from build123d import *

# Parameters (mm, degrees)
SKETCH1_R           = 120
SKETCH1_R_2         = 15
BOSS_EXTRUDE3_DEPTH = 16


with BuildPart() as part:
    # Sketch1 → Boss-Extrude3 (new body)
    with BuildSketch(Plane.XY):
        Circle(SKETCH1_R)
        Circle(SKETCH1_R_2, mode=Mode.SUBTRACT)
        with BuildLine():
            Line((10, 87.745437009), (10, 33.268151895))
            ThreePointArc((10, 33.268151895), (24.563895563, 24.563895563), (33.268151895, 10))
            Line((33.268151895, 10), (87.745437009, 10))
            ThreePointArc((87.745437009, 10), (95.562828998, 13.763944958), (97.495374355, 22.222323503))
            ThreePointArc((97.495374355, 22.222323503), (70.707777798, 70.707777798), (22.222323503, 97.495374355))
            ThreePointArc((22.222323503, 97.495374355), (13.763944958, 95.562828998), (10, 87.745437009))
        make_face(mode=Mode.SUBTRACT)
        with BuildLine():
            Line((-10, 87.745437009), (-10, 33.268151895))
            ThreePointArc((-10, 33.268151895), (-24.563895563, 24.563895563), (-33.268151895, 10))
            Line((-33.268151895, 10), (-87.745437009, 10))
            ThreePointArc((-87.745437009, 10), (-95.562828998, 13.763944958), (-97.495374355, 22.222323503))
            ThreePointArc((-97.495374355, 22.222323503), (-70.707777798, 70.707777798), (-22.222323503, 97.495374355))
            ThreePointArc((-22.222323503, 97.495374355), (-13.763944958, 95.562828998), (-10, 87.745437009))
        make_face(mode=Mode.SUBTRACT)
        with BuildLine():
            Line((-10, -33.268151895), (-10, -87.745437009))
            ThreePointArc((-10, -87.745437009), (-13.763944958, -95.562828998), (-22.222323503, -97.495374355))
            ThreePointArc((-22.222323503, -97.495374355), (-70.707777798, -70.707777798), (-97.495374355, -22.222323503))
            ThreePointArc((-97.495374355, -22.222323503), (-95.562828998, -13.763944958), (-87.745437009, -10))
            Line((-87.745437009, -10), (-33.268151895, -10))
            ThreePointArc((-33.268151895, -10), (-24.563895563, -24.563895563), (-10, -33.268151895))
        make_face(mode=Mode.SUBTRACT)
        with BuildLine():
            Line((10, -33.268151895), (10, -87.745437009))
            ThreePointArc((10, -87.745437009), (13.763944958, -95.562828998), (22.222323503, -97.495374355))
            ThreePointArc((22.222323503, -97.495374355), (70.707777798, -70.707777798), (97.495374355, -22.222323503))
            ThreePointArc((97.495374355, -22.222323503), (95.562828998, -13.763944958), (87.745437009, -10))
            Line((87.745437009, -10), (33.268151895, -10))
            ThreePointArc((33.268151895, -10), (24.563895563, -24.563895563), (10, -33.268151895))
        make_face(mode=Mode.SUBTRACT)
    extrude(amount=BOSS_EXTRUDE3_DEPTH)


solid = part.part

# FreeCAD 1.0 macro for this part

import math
import FreeCAD as App
import Part
import Sketcher
Q = App.Units.Quantity

doc = App.newDocument("Part")
body = doc.addObject("PartDesign::Body", "Body")

# Sketch on XY plane
sketch1 = doc.addObject("Sketcher::SketchObject", "Sketch")
body.addObject(sketch1)
sketch1.AttachmentSupport = (doc.XY_Plane, [""])
sketch1.MapMode = "FlatFace"
sketch1.addGeometry([
    Part.Circle(App.Vector(0, 0, 0), App.Vector(0, 0, 1), 120),  # 0
    Part.ArcOfCircle(Part.Circle(App.Vector(0, 0, 0), App.Vector(0, 0, 1), 35), math.radians(-163), math.radians(-107)),  # 1
    Part.LineSegment(App.Vector(-10, -33, 0), App.Vector(-10, -88, 0)),  # 2
    Part.ArcOfCircle(Part.Circle(App.Vector(-20, -88, 0), App.Vector(0, 0, 1), 10), math.radians(-103), math.radians(0)),  # 3
    Part.ArcOfCircle(Part.Circle(App.Vector(0, 0, 0), App.Vector(0, 0, 1), 100), math.radians(-167), math.radians(-103)),  # 4
    Part.ArcOfCircle(Part.Circle(App.Vector(-88, -20, 0), App.Vector(0, 0, 1), 10), math.radians(90), math.radians(193)),  # 5
    Part.LineSegment(App.Vector(-88, -10, 0), App.Vector(-33, -10, 0)),  # 6
    Part.Circle(App.Vector(0, 0, 0), App.Vector(0, 0, 1), 15),  # 7
    Part.LineSegment(App.Vector(10, -88, 0), App.Vector(10, -33, 0)),  # 8
    Part.ArcOfCircle(Part.Circle(App.Vector(0, 0, 0), App.Vector(0, 0, 1), 35), math.radians(-73), math.radians(-17)),  # 9
    Part.LineSegment(App.Vector(33, -10, 0), App.Vector(88, -10, 0)),  # 10
    Part.ArcOfCircle(Part.Circle(App.Vector(88, -20, 0), App.Vector(0, 0, 1), 10), math.radians(-13), math.radians(90)),  # 11
    Part.ArcOfCircle(Part.Circle(App.Vector(0, 0, 0), App.Vector(0, 0, 1), 100), math.radians(-77), math.radians(-13)),  # 12
    Part.ArcOfCircle(Part.Circle(App.Vector(20, -88, 0), App.Vector(0, 0, 1), 10), math.radians(180), math.radians(283)),  # 13
    Part.ArcOfCircle(Part.Circle(App.Vector(-20, 88, 0), App.Vector(0, 0, 1), 10), math.radians(0), math.radians(103)),  # 14
    Part.LineSegment(App.Vector(-10, 88, 0), App.Vector(-10, 33, 0)),  # 15
    Part.ArcOfCircle(Part.Circle(App.Vector(0, 0, 0), App.Vector(0, 0, 1), 35), math.radians(107), math.radians(163)),  # 16
    Part.LineSegment(App.Vector(-33, 10, 0), App.Vector(-88, 10, 0)),  # 17
    Part.ArcOfCircle(Part.Circle(App.Vector(-88, 20, 0), App.Vector(0, 0, 1), 10), math.radians(167), math.radians(270)),  # 18
    Part.ArcOfCircle(Part.Circle(App.Vector(0, 0, 0), App.Vector(0, 0, 1), 100), math.radians(103), math.radians(167)),  # 19
    Part.LineSegment(App.Vector(10, 33, 0), App.Vector(10, 88, 0)),  # 20
    Part.ArcOfCircle(Part.Circle(App.Vector(20, 88, 0), App.Vector(0, 0, 1), 10), math.radians(77), math.radians(180)),  # 21
    Part.ArcOfCircle(Part.Circle(App.Vector(0, 0, 0), App.Vector(0, 0, 1), 100), math.radians(13), math.radians(77)),  # 22
    Part.ArcOfCircle(Part.Circle(App.Vector(88, 20, 0), App.Vector(0, 0, 1), 10), math.radians(-90), math.radians(13)),  # 23
    Part.LineSegment(App.Vector(88, 10, 0), App.Vector(33, 10, 0)),  # 24
    Part.ArcOfCircle(Part.Circle(App.Vector(0, 0, 0), App.Vector(0, 0, 1), 35), math.radians(17), math.radians(73)),  # 25
], False)
sketch1.addConstraint([
    Sketcher.Constraint("Coincident", 1, 2, 2, 1),
    Sketcher.Constraint("Tangent", 2, 2, 3, 2),
    Sketcher.Constraint("Tangent", 3, 1, 4, 2),
    Sketcher.Constraint("Tangent", 4, 1, 5, 2),
    Sketcher.Constraint("Tangent", 5, 1, 6, 1),
    Sketcher.Constraint("Coincident", 6, 2, 1, 1),
    Sketcher.Constraint("Coincident", 8, 2, 9, 1),
    Sketcher.Constraint("Coincident", 9, 2, 10, 1),
    Sketcher.Constraint("Tangent", 10, 2, 11, 2),
    Sketcher.Constraint("Tangent", 11, 1, 12, 2),
    Sketcher.Constraint("Tangent", 12, 1, 13, 2),
    Sketcher.Constraint("Tangent", 13, 1, 8, 1),
    Sketcher.Constraint("Tangent", 14, 1, 15, 1),
    Sketcher.Constraint("Coincident", 15, 2, 16, 1),
    Sketcher.Constraint("Coincident", 16, 2, 17, 1),
    Sketcher.Constraint("Tangent", 17, 2, 18, 2),
    Sketcher.Constraint("Tangent", 18, 1, 19, 2),
    Sketcher.Constraint("Tangent", 19, 1, 14, 2),
    Sketcher.Constraint("Tangent", 20, 2, 21, 2),
    Sketcher.Constraint("Tangent", 21, 1, 22, 2),
    Sketcher.Constraint("Tangent", 22, 1, 23, 2),
    Sketcher.Constraint("Tangent", 23, 1, 24, 1),
    Sketcher.Constraint("Coincident", 24, 2, 25, 1),
    Sketcher.Constraint("Coincident", 25, 2, 20, 1),
    Sketcher.Constraint("Vertical", 2),
    Sketcher.Constraint("Horizontal", 6),
    Sketcher.Constraint("Vertical", 8),
    Sketcher.Constraint("Horizontal", 10),
    Sketcher.Constraint("Vertical", 15),
    Sketcher.Constraint("Horizontal", 17),
    Sketcher.Constraint("Vertical", 20),
    Sketcher.Constraint("Horizontal", 24),
    Sketcher.Constraint("Coincident", 0, 3, -1, 1),
    Sketcher.Constraint("Coincident", 1, 3, -1, 1),
    Sketcher.Constraint("Coincident", 4, 3, -1, 1),
    Sketcher.Constraint("Coincident", 7, 3, -1, 1),
    Sketcher.Constraint("Coincident", 9, 3, -1, 1),
    Sketcher.Constraint("Coincident", 12, 3, -1, 1),
    Sketcher.Constraint("Coincident", 16, 3, -1, 1),
    Sketcher.Constraint("Coincident", 19, 3, -1, 1),
    Sketcher.Constraint("Coincident", 22, 3, -1, 1),
    Sketcher.Constraint("Coincident", 25, 3, -1, 1),
    Sketcher.Constraint("Equal", 3, 5),
    Sketcher.Constraint("Equal", 1, 9),
    Sketcher.Constraint("Equal", 5, 11),
    Sketcher.Constraint("Equal", 4, 12),
    Sketcher.Constraint("Equal", 11, 13),
    Sketcher.Constraint("Equal", 13, 14),
    Sketcher.Constraint("Equal", 9, 16),
    Sketcher.Constraint("Equal", 14, 18),
    Sketcher.Constraint("Equal", 12, 19),
    Sketcher.Constraint("Equal", 18, 21),
    Sketcher.Constraint("Equal", 19, 22),
    Sketcher.Constraint("Equal", 21, 23),
    Sketcher.Constraint("Equal", 16, 25),
    Sketcher.Constraint("Horizontal", 5, 3, 11, 3),
    Sketcher.Constraint("Horizontal", 3, 3, 13, 3),
    Sketcher.Constraint("Horizontal", 14, 3, 21, 3),
    Sketcher.Constraint("Horizontal", 18, 3, 23, 3),
    Sketcher.Constraint("Vertical", 3, 3, 14, 3),
    Sketcher.Constraint("Vertical", 5, 3, 18, 3),
    Sketcher.Constraint("Equal", 24, 2),
    Sketcher.Constraint("Diameter", 0, Q("240 mm")),
    Sketcher.Constraint("Diameter", 7, Q("30 mm")),
    Sketcher.Constraint("Radius", 3, Q("10 mm")),
    Sketcher.Constraint("DistanceX", 3, 3, -1, 1, Q("20 mm")),
    Sketcher.Constraint("Radius", 4, Q("99.995898 mm")),
    Sketcher.Constraint("Radius", 1, Q("34.738594 mm")),
])
pad1 = doc.addObject("PartDesign::Pad", "Pad")
body.addObject(pad1)
pad1.Profile = sketch1
pad1.Length = 16

doc.recompute()
